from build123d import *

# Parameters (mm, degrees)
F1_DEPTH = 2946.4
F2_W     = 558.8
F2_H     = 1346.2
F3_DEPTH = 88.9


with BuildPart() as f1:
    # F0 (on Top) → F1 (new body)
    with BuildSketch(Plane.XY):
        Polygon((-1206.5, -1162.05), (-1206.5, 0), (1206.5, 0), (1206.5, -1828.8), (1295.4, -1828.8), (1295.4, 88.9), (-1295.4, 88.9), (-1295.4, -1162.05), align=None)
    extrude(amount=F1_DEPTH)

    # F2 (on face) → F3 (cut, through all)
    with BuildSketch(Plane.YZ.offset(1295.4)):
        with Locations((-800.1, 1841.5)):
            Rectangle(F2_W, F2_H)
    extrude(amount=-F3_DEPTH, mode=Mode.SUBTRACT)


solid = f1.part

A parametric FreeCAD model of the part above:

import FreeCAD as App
import Part
import Sketcher

V = App.Vector
Q = App.Units.Quantity

doc = App.newDocument("Part")
body = doc.addObject("PartDesign::Body", "Body")

# Sketch on XY plane
sketch1 = body.newObject("Sketcher::SketchObject", "Sketch")
sketch1.AttachmentSupport = (doc.getObject("XY_Plane"), [""])
sketch1.MapMode = "FlatFace"
sketch1.addGeometry([
    Part.LineSegment(V(-1206, -1162, 0), V(-1206, 0, 0)),  # 0
    Part.LineSegment(V(-1206, 0, 0), V(1206, 0, 0)),  # 1
    Part.LineSegment(V(1206, 0, 0), V(1206, -1829, 0)),  # 2
    Part.LineSegment(V(1206, -1829, 0), V(1295, -1829, 0)),  # 3
    Part.LineSegment(V(1295, -1829, 0), V(1295, 89, 0)),  # 4
    Part.LineSegment(V(1295, 89, 0), V(-1295, 89, 0)),  # 5
    Part.LineSegment(V(-1295, 89, 0), V(-1295, -1162, 0)),  # 6
    Part.LineSegment(V(-1295, -1162, 0), V(-1206, -1162, 0)),  # 7
], False)
sketch1.addConstraint([
    Sketcher.Constraint("Coincident", 0, 2, 1, 1),
    Sketcher.Constraint("Coincident", 1, 2, 2, 1),
    Sketcher.Constraint("Coincident", 2, 2, 3, 1),
    Sketcher.Constraint("Coincident", 3, 2, 4, 1),
    Sketcher.Constraint("Coincident", 4, 2, 5, 1),
    Sketcher.Constraint("Coincident", 5, 2, 6, 1),
    Sketcher.Constraint("Coincident", 6, 2, 7, 1),
    Sketcher.Constraint("Coincident", 7, 2, 0, 1),
    Sketcher.Constraint("Vertical", 0),
    Sketcher.Constraint("Horizontal", 1),
    Sketcher.Constraint("Vertical", 2),
    Sketcher.Constraint("Horizontal", 3),
    Sketcher.Constraint("Vertical", 4),
    Sketcher.Constraint("Horizontal", 5),
    Sketcher.Constraint("Vertical", 6),
    Sketcher.Constraint("Horizontal", 7),
    Sketcher.Constraint("Symmetric", 0, 2, 1, 2, -1, 1),
    Sketcher.Constraint("Equal", 3, 7),
    Sketcher.Constraint("DistanceX", 1, 1, 1, 2, Q("95 in")),
    Sketcher.Constraint("DistanceX", 5, 2, 5, 1, Q("102 in")),
    Sketcher.Constraint("DistanceY", 2, 2, 2, 1, Q("72 in")),
    Sketcher.Constraint("DistanceY", 4, 1, 4, 2, Q("75.5 in")),
    Sketcher.Constraint("DistanceY", 0, 1, 0, 2, Q("45.75 in")),
])
pad1 = body.newObject("PartDesign::Pad", "Pad")
pad1.Profile = sketch1
pad1.Length = Q("116 in")

# Sketch on YZ plane
sketch2 = body.newObject("Sketcher::SketchObject", "Sketch001")
sketch2.AttachmentSupport = (doc.getObject("YZ_Plane"), [""])
sketch2.MapMode = "FlatFace"
sketch2.AttachmentOffset = App.Placement(V(0, 0, 51 * 25.4), App.Rotation())
sketch2.addGeometry([
    Part.LineSegment(V(-1080, 2515, 0), V(-1080, 1168, 0)),
    Part.LineSegment(V(-1080, 1168, 0), V(-521, 1168, 0)),
    Part.LineSegment(V(-521, 1168, 0), V(-521, 2515, 0)),
    Part.LineSegment(V(-521, 2515, 0), V(-1080, 2515, 0)),
], False)
sketch2.addConstraint([
    Sketcher.Constraint("Coincident", 0, 2, 1, 1),
    Sketcher.Constraint("Coincident", 1, 2, 2, 1),
    Sketcher.Constraint("Coincident", 2, 2, 3, 1),
    Sketcher.Constraint("Coincident", 3, 2, 0, 1),
    Sketcher.Constraint("Vertical", 0),
    Sketcher.Constraint("Horizontal", 1),
    Sketcher.Constraint("Vertical", 2),
    Sketcher.Constraint("Horizontal", 3),
    Sketcher.Constraint("DistanceX", 1, 1, 1, 2, Q("22 in")),
    Sketcher.Constraint("DistanceY", 0, 2, 0, 1, Q("53 in")),
    Sketcher.Constraint("DistanceY", -1, 1, 0, 2, Q("46 in")),
    Sketcher.Constraint("DistanceX", 0, 2, -1, 1, Q("42.5 in")),
])
pocket1 = body.newObject("PartDesign::Pocket", "Pocket")
pocket1.Profile = sketch2
pocket1.Length = Q("3.5 in")

doc.recompute()
